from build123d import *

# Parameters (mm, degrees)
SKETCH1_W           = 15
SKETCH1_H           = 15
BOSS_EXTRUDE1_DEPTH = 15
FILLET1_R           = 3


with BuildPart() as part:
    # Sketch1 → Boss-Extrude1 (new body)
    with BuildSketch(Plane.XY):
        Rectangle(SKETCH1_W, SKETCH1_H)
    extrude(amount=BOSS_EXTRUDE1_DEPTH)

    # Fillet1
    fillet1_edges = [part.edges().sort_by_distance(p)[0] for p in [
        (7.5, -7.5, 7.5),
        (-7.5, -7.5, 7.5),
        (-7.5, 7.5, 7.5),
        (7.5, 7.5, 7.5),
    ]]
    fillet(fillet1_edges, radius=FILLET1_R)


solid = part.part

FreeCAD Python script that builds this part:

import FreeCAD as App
import Part
import Sketcher
from FreeCAD import Vector


def edges_at(feature, points):
    """Names of the edges that pass closest to the given points."""
    edges = feature.Shape.Edges
    near = lambda p: min(range(len(edges)), key=lambda i: edges[i].distToShape(Part.Vertex(*p))[0])
    return sorted({f"Edge{near(p) + 1}" for p in points})

doc = App.newDocument("Part")
params = doc.addObject("Spreadsheet::Sheet", "Params")
for row, (alias, value) in enumerate([
    ("sketch1_width", "15 mm"),
    ("pad1_length", "15 mm"),
    ("fillet_radius", "3 mm"),
], start=1):
    params.set(f"A{row}", alias)
    params.set(f"B{row}", "=" + value)
    params.setAlias(f"B{row}", alias)

body = doc.addObject("PartDesign::Body", "Body")

# Sketch on XY plane
sketch1 = body.newObject("Sketcher::SketchObject", "Sketch")
sketch1.AttachmentSupport = (doc.getObject("XY_Plane"), [""])
sketch1.MapMode = "FlatFace"
sketch1.addGeometry([
    Part.LineSegment(Vector(-8, 8, 0), Vector(-8, -8, 0)),
    Part.LineSegment(Vector(-8, -8, 0), Vector(8, -8, 0)),
    Part.LineSegment(Vector(8, -8, 0), Vector(8, 8, 0)),
    Part.LineSegment(Vector(8, 8, 0), Vector(-8, 8, 0)),
], False)
sketch1.addConstraint([
    Sketcher.Constraint("Coincident", 0, 2, 1, 1),
    Sketcher.Constraint("Coincident", 1, 2, 2, 1),
    Sketcher.Constraint("Coincident", 2, 2, 3, 1),
    Sketcher.Constraint("Coincident", 3, 2, 0, 1),
    Sketcher.Constraint("Vertical", 0),
    Sketcher.Constraint("Horizontal", 1),
    Sketcher.Constraint("Vertical", 2),
    Sketcher.Constraint("Horizontal", 3),
    Sketcher.Constraint("Symmetric", 0, 2, 2, 2, -1, 1),
    Sketcher.Constraint("Equal", 3, 0),
    Sketcher.Constraint("DistanceX", 1, 1, 1, 2, 15.0),
])
sketch1.setExpression("Constraints[10]", "Params.sketch1_width")
pad1 = body.newObject("PartDesign::Pad", "Pad")
pad1.Profile = sketch1
pad1.setExpression("Length", "Params.pad1_length")
doc.recompute()

fillet = body.newObject("PartDesign::Fillet", "Fillet")
fillet.Base = (pad1, edges_at(pad1, [
    (7.5, -7.5, 7.5),
    (-7.5, -7.5, 7.5),
    (-7.5, 7.5, 7.5),
    (7.5, 7.5, 7.5),
]))
fillet.setExpression("Radius", "Params.fillet_radius")

doc.recompute()
